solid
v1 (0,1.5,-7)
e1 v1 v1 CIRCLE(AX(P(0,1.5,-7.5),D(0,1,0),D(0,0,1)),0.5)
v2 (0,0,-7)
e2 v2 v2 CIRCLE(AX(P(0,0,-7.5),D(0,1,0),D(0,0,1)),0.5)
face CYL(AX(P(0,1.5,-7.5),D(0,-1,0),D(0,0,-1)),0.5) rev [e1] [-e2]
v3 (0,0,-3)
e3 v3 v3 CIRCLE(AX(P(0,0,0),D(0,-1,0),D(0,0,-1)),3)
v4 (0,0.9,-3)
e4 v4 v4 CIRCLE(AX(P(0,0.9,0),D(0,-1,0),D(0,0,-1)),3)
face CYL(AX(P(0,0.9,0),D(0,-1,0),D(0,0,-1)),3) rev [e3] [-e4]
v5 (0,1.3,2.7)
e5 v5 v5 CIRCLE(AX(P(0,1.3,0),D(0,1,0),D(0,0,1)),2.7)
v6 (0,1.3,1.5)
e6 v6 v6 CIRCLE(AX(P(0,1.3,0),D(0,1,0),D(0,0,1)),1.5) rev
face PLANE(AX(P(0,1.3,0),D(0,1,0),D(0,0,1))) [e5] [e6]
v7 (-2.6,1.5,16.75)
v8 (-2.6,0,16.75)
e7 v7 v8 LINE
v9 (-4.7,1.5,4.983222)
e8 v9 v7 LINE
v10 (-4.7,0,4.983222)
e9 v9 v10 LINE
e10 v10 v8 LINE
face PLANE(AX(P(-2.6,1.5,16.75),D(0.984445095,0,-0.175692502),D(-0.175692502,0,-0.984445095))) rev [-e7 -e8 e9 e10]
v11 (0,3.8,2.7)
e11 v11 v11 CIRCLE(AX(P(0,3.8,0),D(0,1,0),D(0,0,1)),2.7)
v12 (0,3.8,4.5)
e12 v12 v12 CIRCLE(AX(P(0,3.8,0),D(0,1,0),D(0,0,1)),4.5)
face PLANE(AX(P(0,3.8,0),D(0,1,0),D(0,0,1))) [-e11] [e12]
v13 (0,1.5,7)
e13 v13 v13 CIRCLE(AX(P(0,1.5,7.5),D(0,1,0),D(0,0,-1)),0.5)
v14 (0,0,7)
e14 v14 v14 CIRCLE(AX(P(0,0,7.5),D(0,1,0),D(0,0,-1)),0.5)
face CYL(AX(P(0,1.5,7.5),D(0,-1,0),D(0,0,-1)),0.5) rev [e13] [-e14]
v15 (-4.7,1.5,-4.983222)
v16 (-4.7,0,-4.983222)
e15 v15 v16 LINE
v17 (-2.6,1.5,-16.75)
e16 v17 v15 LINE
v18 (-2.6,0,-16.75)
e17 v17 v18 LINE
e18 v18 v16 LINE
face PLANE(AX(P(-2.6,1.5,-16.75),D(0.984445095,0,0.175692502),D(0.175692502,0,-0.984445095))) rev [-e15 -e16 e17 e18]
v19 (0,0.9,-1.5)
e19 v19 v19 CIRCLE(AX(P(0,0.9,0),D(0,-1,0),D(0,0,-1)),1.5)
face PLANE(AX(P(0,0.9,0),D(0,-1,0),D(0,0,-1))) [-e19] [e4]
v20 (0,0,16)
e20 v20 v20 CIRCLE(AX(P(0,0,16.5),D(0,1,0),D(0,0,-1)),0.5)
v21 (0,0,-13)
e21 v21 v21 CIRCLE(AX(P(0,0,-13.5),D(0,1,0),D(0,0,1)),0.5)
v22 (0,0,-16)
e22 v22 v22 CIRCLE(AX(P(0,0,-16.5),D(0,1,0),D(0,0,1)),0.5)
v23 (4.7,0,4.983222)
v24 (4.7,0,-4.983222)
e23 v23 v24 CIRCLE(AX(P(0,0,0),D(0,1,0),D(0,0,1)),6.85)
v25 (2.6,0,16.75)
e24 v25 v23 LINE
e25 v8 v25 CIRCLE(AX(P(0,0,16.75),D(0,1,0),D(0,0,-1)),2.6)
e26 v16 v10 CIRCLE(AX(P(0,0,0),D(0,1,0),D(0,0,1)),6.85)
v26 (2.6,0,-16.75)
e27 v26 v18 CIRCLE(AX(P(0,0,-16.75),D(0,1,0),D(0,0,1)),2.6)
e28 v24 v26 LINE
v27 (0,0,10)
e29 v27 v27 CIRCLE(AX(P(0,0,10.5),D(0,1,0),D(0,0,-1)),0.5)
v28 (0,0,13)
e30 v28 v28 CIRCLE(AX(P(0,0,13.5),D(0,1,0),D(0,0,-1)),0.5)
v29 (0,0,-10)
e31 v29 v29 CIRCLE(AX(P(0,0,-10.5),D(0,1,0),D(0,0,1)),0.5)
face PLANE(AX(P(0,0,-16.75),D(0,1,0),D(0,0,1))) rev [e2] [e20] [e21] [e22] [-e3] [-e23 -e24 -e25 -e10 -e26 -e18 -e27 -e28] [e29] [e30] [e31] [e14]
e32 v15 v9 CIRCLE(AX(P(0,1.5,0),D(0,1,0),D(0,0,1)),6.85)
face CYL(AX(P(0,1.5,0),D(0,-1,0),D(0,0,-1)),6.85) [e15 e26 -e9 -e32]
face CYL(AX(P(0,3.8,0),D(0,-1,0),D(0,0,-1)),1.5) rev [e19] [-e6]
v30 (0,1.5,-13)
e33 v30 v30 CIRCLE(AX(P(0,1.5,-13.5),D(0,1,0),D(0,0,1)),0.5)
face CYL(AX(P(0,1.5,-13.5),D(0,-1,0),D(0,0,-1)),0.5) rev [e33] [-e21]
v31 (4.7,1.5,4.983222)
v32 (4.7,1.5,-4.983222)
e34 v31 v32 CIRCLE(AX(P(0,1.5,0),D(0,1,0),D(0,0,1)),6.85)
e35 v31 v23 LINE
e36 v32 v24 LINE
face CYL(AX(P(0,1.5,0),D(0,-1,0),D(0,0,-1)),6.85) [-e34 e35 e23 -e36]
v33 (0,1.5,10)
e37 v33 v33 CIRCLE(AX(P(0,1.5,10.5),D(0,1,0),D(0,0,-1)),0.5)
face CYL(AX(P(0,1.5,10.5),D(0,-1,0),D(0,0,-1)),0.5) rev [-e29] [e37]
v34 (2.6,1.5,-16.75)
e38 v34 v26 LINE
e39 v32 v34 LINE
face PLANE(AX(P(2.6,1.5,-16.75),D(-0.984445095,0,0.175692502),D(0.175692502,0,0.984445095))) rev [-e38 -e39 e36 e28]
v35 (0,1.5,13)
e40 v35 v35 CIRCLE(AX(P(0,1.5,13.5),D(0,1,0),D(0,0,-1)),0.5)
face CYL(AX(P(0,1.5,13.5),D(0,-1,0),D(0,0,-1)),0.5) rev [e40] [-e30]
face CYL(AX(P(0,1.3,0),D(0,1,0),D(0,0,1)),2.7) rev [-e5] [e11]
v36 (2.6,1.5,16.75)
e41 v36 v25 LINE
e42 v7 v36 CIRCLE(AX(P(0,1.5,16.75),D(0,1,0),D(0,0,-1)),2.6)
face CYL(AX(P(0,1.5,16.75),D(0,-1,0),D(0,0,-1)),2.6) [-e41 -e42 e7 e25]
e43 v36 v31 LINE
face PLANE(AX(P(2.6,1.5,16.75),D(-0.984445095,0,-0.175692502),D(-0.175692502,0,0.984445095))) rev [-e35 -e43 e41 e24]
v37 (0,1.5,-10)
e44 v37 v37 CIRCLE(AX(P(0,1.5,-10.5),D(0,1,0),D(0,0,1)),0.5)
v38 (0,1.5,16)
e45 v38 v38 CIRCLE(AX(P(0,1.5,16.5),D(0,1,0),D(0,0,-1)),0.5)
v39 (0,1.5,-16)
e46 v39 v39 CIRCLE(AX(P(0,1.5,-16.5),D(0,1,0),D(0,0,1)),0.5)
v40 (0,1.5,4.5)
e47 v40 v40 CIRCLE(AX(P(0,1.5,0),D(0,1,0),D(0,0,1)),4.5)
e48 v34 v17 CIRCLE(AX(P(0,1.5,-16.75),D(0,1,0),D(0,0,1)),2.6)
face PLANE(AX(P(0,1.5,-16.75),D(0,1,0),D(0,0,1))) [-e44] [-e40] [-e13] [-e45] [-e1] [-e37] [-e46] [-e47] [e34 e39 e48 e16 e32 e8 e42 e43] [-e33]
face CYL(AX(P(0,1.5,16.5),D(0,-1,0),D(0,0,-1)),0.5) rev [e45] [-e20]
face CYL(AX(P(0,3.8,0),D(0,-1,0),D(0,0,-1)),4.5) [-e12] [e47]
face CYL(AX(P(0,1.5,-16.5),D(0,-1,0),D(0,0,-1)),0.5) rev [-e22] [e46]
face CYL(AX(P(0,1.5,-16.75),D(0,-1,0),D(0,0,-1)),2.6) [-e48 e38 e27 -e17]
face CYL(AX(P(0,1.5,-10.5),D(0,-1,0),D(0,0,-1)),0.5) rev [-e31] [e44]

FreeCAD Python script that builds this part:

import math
import FreeCAD as App
import Part
import Sketcher

V = App.Vector
Q = App.Units.Quantity

doc = App.newDocument("Part")
params = doc.addObject("Spreadsheet::Sheet", "Params")
for row, (alias, value) in enumerate([
    ("sketch1_diameter", "1 mm"),
    ("sketch1_radius", "2.6 mm"),
    ("sketch1_radius2", "6.85 mm"),
    ("pad1_length", "1.5 mm"),
    ("sketch2_diameter", "9 mm"),
    ("pad2_length", "2.3 mm"),
    ("sketch3_diameter", "6 mm"),
    ("pocket1_length", "0.9 mm"),
    ("sketch4_diameter", "3 mm"),
    ("sketch5_diameter", "5.4 mm"),
    ("pocket3_length", "2.5 mm"),
], start=1):
    params.set(f"A{row}", alias)
    params.set(f"B{row}", "=" + value)
    params.setAlias(f"B{row}", alias)

body = doc.addObject("PartDesign::Body", "Body")

sketch1 = body.newObject("Sketcher::SketchObject", "Sketch")
sketch1.AttachmentSupport = (doc.getObject("XZ_Plane"), [""])
sketch1.MapMode = "FlatFace"
sketch1.addGeometry([
    Part.LineSegment(V(4.7, -5, 0), V(2.6, -16.8, 0)),
    Part.ArcOfCircle(Part.Circle(V(0, -16.8, 0), V(0, 0, 1), 2.6), math.radians(180), math.radians(360)),
    Part.LineSegment(V(-2.6, -16.8, 0), V(-4.7, -5, 0)),
    Part.ArcOfCircle(Part.Circle(V(0, 0, 0), V(0, 0, 1), 6.8), math.radians(133), math.radians(227)),
    Part.LineSegment(V(-4.7, 5, 0), V(-2.6, 16.8, 0)),
    Part.ArcOfCircle(Part.Circle(V(0, 16.8, 0), V(0, 0, 1), 2.6), math.radians(0), math.radians(180)),
    Part.LineSegment(V(2.6, 16.8, 0), V(4.7, 5, 0)),
    Part.ArcOfCircle(Part.Circle(V(0, 0, 0), V(0, 0, 1), 6.8), math.radians(-47), math.radians(47)),
    Part.Circle(V(0, 16.5, 0), V(0, 0, 1), 0.5),
    Part.Circle(V(0, 13.5, 0), V(0, 0, 1), 0.5),
    Part.Circle(V(0, 10.5, 0), V(0, 0, 1), 0.5),
    Part.Circle(V(0, 7.5, 0), V(0, 0, 1), 0.5),
    Part.Circle(V(0, -7.5, 0), V(0, 0, 1), 0.5),
    Part.Circle(V(0, -10.5, 0), V(0, 0, 1), 0.5),
    Part.Circle(V(0, -13.5, 0), V(0, 0, 1), 0.5),
    Part.Circle(V(0, -16.5, 0), V(0, 0, 1), 0.5),
], False)
sketch1.addConstraint([
    Sketcher.Constraint("Coincident", 0, 2, 1, 2),
    Sketcher.Constraint("Coincident", 1, 1, 2, 1),
    Sketcher.Constraint("Coincident", 2, 2, 3, 2),
    Sketcher.Constraint("Coincident", 3, 1, 4, 1),
    Sketcher.Constraint("Coincident", 4, 2, 5, 2),
    Sketcher.Constraint("Coincident", 5, 1, 6, 1),
    Sketcher.Constraint("Coincident", 6, 2, 7, 2),
    Sketcher.Constraint("Coincident", 7, 1, 0, 1),
    Sketcher.Constraint("Coincident", 3, 3, -1, 1),
    Sketcher.Constraint("Coincident", 7, 3, -1, 1),
    Sketcher.Constraint("Equal", 1, 5),
    Sketcher.Constraint("Equal", 3, 7),
    Sketcher.Constraint("Equal", 8, 9),
    Sketcher.Constraint("Equal", 9, 10),
    Sketcher.Constraint("Equal", 10, 11),
    Sketcher.Constraint("Equal", 11, 12),
    Sketcher.Constraint("Equal", 12, 13),
    Sketcher.Constraint("Equal", 13, 14),
    Sketcher.Constraint("Equal", 14, 15),
    Sketcher.Constraint("Symmetric", 1, 3, 5, 3, -1, 1),
    Sketcher.Constraint("Symmetric", 11, 3, 12, 3, -1, 1),
    Sketcher.Constraint("Symmetric", 10, 3, 13, 3, -1, 1),
    Sketcher.Constraint("Symmetric", 9, 3, 14, 3, -1, 1),
    Sketcher.Constraint("Symmetric", 8, 3, 15, 3, -1, 1),
    Sketcher.Constraint("Symmetric", 0, 2, 1, 1, -2),
    Sketcher.Constraint("PointOnObject", 8, 3, -2),
    Sketcher.Constraint("PointOnObject", 9, 3, -2),
    Sketcher.Constraint("PointOnObject", 10, 3, -2),
    Sketcher.Constraint("PointOnObject", 11, 3, -2),
    Sketcher.Constraint("Parallel", 0, 4),
    Sketcher.Constraint("Parallel", 2, 6),
    Sketcher.Constraint("Horizontal", 1, 3, 0, 2),
    Sketcher.Constraint("Horizontal", 5, 3, 4, 2),
    Sketcher.Constraint("Horizontal", 4, 2, 5, 1),
    Sketcher.Constraint("Horizontal", 3, 1, 6, 2),
    Sketcher.Constraint("Diameter", 8, Q("1 mm")),
    Sketcher.Constraint("Radius", 1, Q("2.6 mm")),
    Sketcher.Constraint("Radius", 3, Q("6.85 mm")),
    Sketcher.Constraint("DistanceY", 9, 3, 8, 3, Q("3 mm")),
    Sketcher.Constraint("DistanceY", 10, 3, 9, 3, Q("3 mm")),
    Sketcher.Constraint("DistanceY", 11, 3, 10, 3, Q("3 mm")),
    Sketcher.Constraint("DistanceY", 12, 3, 11, 3, Q("15 mm")),
    Sketcher.Constraint("DistanceX", 2, 2, -1, 1, Q("4.7 mm")),
    Sketcher.Constraint("DistanceY", 1, 3, 5, 3, Q("33.5 mm")),
])
sketch1.setExpression("Constraints[35]", "Params.sketch1_diameter")
sketch1.setExpression("Constraints[36]", "Params.sketch1_radius")
sketch1.setExpression("Constraints[37]", "Params.sketch1_radius2")
pad1 = body.newObject("PartDesign::Pad", "Pad")
pad1.Profile = sketch1
pad1.setExpression("Length", "Params.pad1_length")
pad1.Reversed = True

sketch2 = body.newObject("Sketcher::SketchObject", "Sketch001")
sketch2.AttachmentSupport = (doc.getObject("XZ_Plane"), [""])
sketch2.MapMode = "FlatFace"
sketch2.AttachmentOffset = App.Placement(V(0, 0, -1.5), App.Rotation())
sketch2.addGeometry(Part.Circle(V(0, 0, 0), V(0, 0, 1), 4.5), False)
sketch2.addConstraint([
    Sketcher.Constraint("Coincident", 0, 3, -1, 1),
    Sketcher.Constraint("Diameter", 0, Q("9 mm")),
])
sketch2.setExpression("Constraints[1]", "Params.sketch2_diameter")
pad2 = body.newObject("PartDesign::Pad", "Pad001")
pad2.Profile = sketch2
pad2.setExpression("Length", "Params.pad2_length")
pad2.Reversed = True

sketch3 = body.newObject("Sketcher::SketchObject", "Sketch002")
sketch3.AttachmentSupport = (doc.getObject("XZ_Plane"), [""])
sketch3.MapMode = "FlatFace"
sketch3.addGeometry(Part.Circle(V(0, 0, 0), V(0, 0, 1), 3), False)
sketch3.addConstraint([
    Sketcher.Constraint("Coincident", 0, 3, -1, 1),
    Sketcher.Constraint("Diameter", 0, Q("6 mm")),
])
sketch3.setExpression("Constraints[1]", "Params.sketch3_diameter")
pocket1 = body.newObject("PartDesign::Pocket", "Pocket")
pocket1.Profile = sketch3
pocket1.setExpression("Length", "Params.pocket1_length")

sketch4 = body.newObject("Sketcher::SketchObject", "Sketch003")
sketch4.AttachmentSupport = (doc.getObject("XZ_Plane"), [""])
sketch4.MapMode = "FlatFace"
sketch4.AttachmentOffset = App.Placement(V(0, 0, -0.9), App.Rotation())
sketch4.addGeometry(Part.Circle(V(0, 0, 0), V(0, 0, 1), 1.5), False)
sketch4.addConstraint([
    Sketcher.Constraint("Coincident", 0, 3, -1, 1),
    Sketcher.Constraint("Diameter", 0, Q("3 mm")),
])
sketch4.setExpression("Constraints[1]", "Params.sketch4_diameter")
pocket2 = body.newObject("PartDesign::Pocket", "Pocket001")
pocket2.Profile = sketch4
pocket2.Type = "ThroughAll"

sketch5 = body.newObject("Sketcher::SketchObject", "Sketch004")
sketch5.AttachmentSupport = (doc.getObject("XZ_Plane"), [""])
sketch5.MapMode = "FlatFace"
sketch5.AttachmentOffset = App.Placement(V(0, 0, -3.8), App.Rotation())
sketch5.addGeometry(Part.Circle(V(0, 0, 0), V(0, 0, 1), 2.7), False)
sketch5.addConstraint([
    Sketcher.Constraint("Coincident", 0, 3, -1, 1),
    Sketcher.Constraint("Diameter", 0, Q("5.4 mm")),
])
sketch5.setExpression("Constraints[1]", "Params.sketch5_diameter")
pocket3 = body.newObject("PartDesign::Pocket", "Pocket002")
pocket3.Profile = sketch5
pocket3.setExpression("Length", "Params.pocket3_length")
pocket3.Reversed = True

doc.recompute()
